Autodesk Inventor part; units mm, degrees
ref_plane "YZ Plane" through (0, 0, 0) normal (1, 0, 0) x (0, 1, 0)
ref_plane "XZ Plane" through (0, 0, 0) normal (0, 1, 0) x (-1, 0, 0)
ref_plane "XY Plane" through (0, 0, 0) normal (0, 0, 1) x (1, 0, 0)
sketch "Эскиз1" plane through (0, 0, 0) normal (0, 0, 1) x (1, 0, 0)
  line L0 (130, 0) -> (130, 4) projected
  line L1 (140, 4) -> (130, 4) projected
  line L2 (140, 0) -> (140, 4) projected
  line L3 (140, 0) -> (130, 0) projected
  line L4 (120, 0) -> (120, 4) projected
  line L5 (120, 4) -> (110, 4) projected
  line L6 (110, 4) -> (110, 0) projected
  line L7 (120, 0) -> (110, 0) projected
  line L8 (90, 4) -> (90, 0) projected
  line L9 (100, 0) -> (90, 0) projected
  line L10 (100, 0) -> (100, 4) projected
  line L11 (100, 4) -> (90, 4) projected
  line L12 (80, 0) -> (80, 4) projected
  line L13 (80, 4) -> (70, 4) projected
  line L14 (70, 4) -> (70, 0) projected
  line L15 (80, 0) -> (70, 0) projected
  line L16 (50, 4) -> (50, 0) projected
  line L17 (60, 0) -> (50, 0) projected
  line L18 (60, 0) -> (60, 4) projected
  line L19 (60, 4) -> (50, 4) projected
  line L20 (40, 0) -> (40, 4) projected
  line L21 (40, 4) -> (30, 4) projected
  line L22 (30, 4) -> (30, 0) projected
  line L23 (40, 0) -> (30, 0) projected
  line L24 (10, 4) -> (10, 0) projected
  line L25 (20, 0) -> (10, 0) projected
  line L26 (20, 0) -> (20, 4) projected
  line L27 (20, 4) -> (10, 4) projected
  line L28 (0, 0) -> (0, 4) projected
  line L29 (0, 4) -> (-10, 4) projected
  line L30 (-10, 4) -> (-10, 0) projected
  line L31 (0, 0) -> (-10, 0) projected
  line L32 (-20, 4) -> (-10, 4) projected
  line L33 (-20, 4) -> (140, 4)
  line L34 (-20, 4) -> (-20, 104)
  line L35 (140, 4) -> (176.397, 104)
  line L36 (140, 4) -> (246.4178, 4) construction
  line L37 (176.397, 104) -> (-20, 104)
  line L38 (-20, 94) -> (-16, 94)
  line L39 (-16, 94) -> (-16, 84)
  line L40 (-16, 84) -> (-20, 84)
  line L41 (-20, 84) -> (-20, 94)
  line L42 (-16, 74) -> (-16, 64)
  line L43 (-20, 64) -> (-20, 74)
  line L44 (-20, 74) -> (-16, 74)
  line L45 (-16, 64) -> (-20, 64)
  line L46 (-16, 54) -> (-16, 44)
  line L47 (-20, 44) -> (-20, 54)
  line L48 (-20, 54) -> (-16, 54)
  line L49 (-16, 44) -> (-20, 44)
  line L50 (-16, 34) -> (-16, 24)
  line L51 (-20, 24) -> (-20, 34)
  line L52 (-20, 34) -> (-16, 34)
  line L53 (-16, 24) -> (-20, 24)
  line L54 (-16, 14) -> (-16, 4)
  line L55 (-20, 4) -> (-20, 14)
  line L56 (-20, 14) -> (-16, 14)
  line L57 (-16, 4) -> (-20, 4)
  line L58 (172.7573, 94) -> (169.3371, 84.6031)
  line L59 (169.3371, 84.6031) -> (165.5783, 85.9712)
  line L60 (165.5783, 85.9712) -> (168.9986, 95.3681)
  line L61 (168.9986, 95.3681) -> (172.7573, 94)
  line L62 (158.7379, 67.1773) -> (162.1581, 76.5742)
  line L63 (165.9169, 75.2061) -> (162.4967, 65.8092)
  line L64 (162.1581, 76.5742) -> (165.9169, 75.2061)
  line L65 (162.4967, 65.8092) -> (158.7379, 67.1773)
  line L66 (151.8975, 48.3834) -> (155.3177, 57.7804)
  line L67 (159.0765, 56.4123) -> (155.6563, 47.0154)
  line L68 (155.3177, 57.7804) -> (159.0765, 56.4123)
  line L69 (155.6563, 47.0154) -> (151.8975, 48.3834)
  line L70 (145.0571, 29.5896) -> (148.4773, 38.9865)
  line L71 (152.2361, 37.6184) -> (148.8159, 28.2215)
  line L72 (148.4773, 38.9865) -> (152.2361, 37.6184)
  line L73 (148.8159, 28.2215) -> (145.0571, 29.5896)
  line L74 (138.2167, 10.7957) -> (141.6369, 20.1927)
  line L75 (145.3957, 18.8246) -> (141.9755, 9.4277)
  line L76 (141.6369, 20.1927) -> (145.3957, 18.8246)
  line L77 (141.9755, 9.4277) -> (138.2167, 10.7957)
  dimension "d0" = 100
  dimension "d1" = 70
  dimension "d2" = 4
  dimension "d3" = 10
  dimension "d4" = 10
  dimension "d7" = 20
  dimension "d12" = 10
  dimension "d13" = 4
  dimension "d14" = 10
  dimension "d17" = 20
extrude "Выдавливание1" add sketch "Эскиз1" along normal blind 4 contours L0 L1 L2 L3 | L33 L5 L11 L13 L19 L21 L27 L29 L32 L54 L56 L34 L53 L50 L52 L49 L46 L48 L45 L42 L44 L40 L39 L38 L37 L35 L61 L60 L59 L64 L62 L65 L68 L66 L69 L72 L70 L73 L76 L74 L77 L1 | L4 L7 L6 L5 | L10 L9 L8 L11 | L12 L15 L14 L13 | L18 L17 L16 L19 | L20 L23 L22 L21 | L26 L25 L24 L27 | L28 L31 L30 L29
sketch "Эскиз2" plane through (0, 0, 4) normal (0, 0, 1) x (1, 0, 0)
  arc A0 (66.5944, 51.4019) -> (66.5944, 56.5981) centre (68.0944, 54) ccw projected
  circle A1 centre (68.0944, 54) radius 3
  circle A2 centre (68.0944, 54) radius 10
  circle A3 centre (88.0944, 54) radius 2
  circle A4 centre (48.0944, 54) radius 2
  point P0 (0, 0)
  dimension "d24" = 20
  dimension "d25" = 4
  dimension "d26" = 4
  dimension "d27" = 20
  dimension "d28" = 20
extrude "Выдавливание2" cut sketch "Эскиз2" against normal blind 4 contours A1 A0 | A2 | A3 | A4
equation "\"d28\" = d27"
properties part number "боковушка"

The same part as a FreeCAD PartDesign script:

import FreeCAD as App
import Part
import Sketcher

V = App.Vector
Q = App.Units.Quantity


def add_polygon(sketch, points):
    """Adds a closed chain of lines whose ends are joined by coincident constraints."""
    first, n = sketch.GeometryCount, len(points)
    for a, b in zip(points, points[1:] + points[:1]):
        sketch.addGeometry(Part.LineSegment(App.Vector(*a, 0), App.Vector(*b, 0)), False)
    for i in range(n):
        sketch.addConstraint(Sketcher.Constraint("Coincident", first + i, 2, first + (i + 1) % n, 1))

doc = App.newDocument("Part")
body = doc.addObject("PartDesign::Body", "Body")

# Sketch on XY plane
sketch1 = body.newObject("Sketcher::SketchObject", "Sketch")
sketch1.AttachmentSupport = (doc.getObject("XY_Plane"), [""])
sketch1.MapMode = "FlatFace"
add_polygon(sketch1, [(130, 4), (130, 0), (140, 0), (140, 4), (141.9755, 9.4277), (138.2167, 10.7957), (141.6369, 20.1927), (145.395709, 18.824597), (148.8159, 28.2215), (145.0571, 29.5896), (148.4773, 38.9865), (152.23609, 37.618404), (155.6563, 47.0154), (151.8975, 48.3834), (155.3177, 57.7804), (159.076504, 56.412298), (162.4967, 65.8092), (158.7379, 67.1773), (162.1581, 76.5742), (165.916886, 75.206105), (169.3371, 84.6031), (165.5783, 85.9712), (168.9986, 95.3681), (172.7573, 94), (176.397, 104), (-20, 104), (-20, 94), (-16, 94), (-16, 84), (-20, 84), (-20, 74), (-16, 74), (-16, 64), (-20, 64), (-20, 54), (-16, 54), (-16, 44), (-20, 44), (-20, 34), (-16, 34), (-16, 24), (-20, 24), (-20, 14), (-16, 14), (-16, 4), (-10, 4), (-10, 0), (0, 0), (0, 4), (10, 4), (10, 0), (20, 0), (20, 4), (30, 4), (30, 0), (40, 0), (40, 4), (50, 4), (50, 0), (60, 0), (60, 4), (70, 4), (70, 0), (80, 0), (80, 4), (90, 4), (90, 0), (100, 0), (100, 4), (110, 4), (110, 0), (120, 0), (120, 4)])  # lines 0-72
sketch1.addConstraint([
    Sketcher.Constraint("Vertical", 0),
    Sketcher.Constraint("Horizontal", 1),
    Sketcher.Constraint("Vertical", 2),
    Sketcher.Constraint("Horizontal", 24),
    Sketcher.Constraint("Vertical", 25),
    Sketcher.Constraint("Horizontal", 26),
    Sketcher.Constraint("Vertical", 27),
    Sketcher.Constraint("Horizontal", 28),
    Sketcher.Constraint("Vertical", 29),
    Sketcher.Constraint("Horizontal", 30),
    Sketcher.Constraint("Vertical", 31),
    Sketcher.Constraint("Horizontal", 32),
    Sketcher.Constraint("Vertical", 33),
    Sketcher.Constraint("Horizontal", 34),
    Sketcher.Constraint("Vertical", 35),
    Sketcher.Constraint("Horizontal", 36),
    Sketcher.Constraint("Vertical", 37),
    Sketcher.Constraint("Horizontal", 38),
    Sketcher.Constraint("Vertical", 39),
    Sketcher.Constraint("Horizontal", 40),
    Sketcher.Constraint("Vertical", 41),
    Sketcher.Constraint("Horizontal", 42),
    Sketcher.Constraint("Vertical", 43),
    Sketcher.Constraint("Horizontal", 44),
    Sketcher.Constraint("Vertical", 45),
    Sketcher.Constraint("Horizontal", 46),
    Sketcher.Constraint("Vertical", 47),
    Sketcher.Constraint("Horizontal", 48),
    Sketcher.Constraint("Vertical", 49),
    Sketcher.Constraint("Horizontal", 50),
    Sketcher.Constraint("Vertical", 51),
    Sketcher.Constraint("Horizontal", 52),
    Sketcher.Constraint("Vertical", 53),
    Sketcher.Constraint("Horizontal", 54),
    Sketcher.Constraint("Vertical", 55),
    Sketcher.Constraint("Horizontal", 56),
    Sketcher.Constraint("Vertical", 57),
    Sketcher.Constraint("Horizontal", 58),
    Sketcher.Constraint("Vertical", 59),
    Sketcher.Constraint("Horizontal", 60),
    Sketcher.Constraint("Vertical", 61),
    Sketcher.Constraint("Horizontal", 62),
    Sketcher.Constraint("Vertical", 63),
    Sketcher.Constraint("Horizontal", 64),
    Sketcher.Constraint("Vertical", 65),
    Sketcher.Constraint("Horizontal", 66),
    Sketcher.Constraint("Vertical", 67),
    Sketcher.Constraint("Horizontal", 68),
    Sketcher.Constraint("Vertical", 69),
    Sketcher.Constraint("Horizontal", 70),
    Sketcher.Constraint("Vertical", 71),
    Sketcher.Constraint("Horizontal", 72),
    Sketcher.Constraint("Coincident", 46, 2, -1, 1),
    Sketcher.Constraint("Symmetric", 45, 2, 49, 2, -1, 1),
    Sketcher.Constraint("PointOnObject", 0, 2, -1),
    Sketcher.Constraint("PointOnObject", 53, 2, -1),
    Sketcher.Constraint("PointOnObject", 57, 2, -1),
    Sketcher.Constraint("PointOnObject", 61, 2, -1),
    Sketcher.Constraint("PointOnObject", 65, 2, -1),
    Sketcher.Constraint("PointOnObject", 69, 2, -1),
    Sketcher.Constraint("Perpendicular", 3, 4),
    Sketcher.Constraint("Perpendicular", 4, 5),
    Sketcher.Constraint("Perpendicular", 5, 6),
    Sketcher.Constraint("Perpendicular", 6, 7),
    Sketcher.Constraint("Perpendicular", 7, 8),
    Sketcher.Constraint("Perpendicular", 8, 9),
    Sketcher.Constraint("Perpendicular", 9, 10),
    Sketcher.Constraint("Perpendicular", 10, 11),
    Sketcher.Constraint("Perpendicular", 11, 12),
    Sketcher.Constraint("Perpendicular", 12, 13),
    Sketcher.Constraint("Perpendicular", 13, 14),
    Sketcher.Constraint("Perpendicular", 14, 15),
    Sketcher.Constraint("Perpendicular", 15, 16),
    Sketcher.Constraint("Perpendicular", 16, 17),
    Sketcher.Constraint("Perpendicular", 17, 18),
    Sketcher.Constraint("Perpendicular", 18, 19),
    Sketcher.Constraint("Perpendicular", 19, 20),
    Sketcher.Constraint("Perpendicular", 20, 21),
    Sketcher.Constraint("Perpendicular", 21, 22),
    Sketcher.Constraint("Perpendicular", 22, 23),
    Sketcher.Constraint("Horizontal", 22, 2, 25, 2),
    Sketcher.Constraint("Horizontal", 2, 2, 43, 2),
    Sketcher.Constraint("Horizontal", 44, 2, 47, 2),
    Sketcher.Constraint("Horizontal", 48, 2, 51, 2),
    Sketcher.Constraint("Horizontal", 52, 2, 55, 2),
    Sketcher.Constraint("Horizontal", 56, 2, 59, 2),
    Sketcher.Constraint("Horizontal", 60, 2, 63, 2),
    Sketcher.Constraint("Horizontal", 64, 2, 67, 2),
    Sketcher.Constraint("Horizontal", 68, 2, 71, 2),
    Sketcher.Constraint("Vertical", 25, 2, 28, 2),
    Sketcher.Constraint("Vertical", 27, 2, 30, 2),
    Sketcher.Constraint("Vertical", 29, 2, 32, 2),
    Sketcher.Constraint("Vertical", 31, 2, 34, 2),
    Sketcher.Constraint("Vertical", 33, 2, 36, 2),
    Sketcher.Constraint("Vertical", 35, 2, 38, 2),
    Sketcher.Constraint("Vertical", 37, 2, 40, 2),
    Sketcher.Constraint("Vertical", 39, 2, 42, 2),
    Sketcher.Constraint("Equal", 1, 46),
    Sketcher.Constraint("Equal", 48, 50),
    Sketcher.Constraint("Equal", 50, 52),
    Sketcher.Constraint("Equal", 52, 54),
    Sketcher.Constraint("Equal", 54, 56),
    Sketcher.Constraint("Equal", 56, 58),
    Sketcher.Constraint("Equal", 58, 60),
    Sketcher.Constraint("Equal", 60, 62),
    Sketcher.Constraint("Equal", 62, 64),
    Sketcher.Constraint("Equal", 64, 66),
    Sketcher.Constraint("Equal", 66, 68),
    Sketcher.Constraint("Equal", 68, 70),
    Sketcher.Constraint("Equal", 70, 72),
    Sketcher.Constraint("Equal", 42, 0),
    Sketcher.Constraint("Equal", 72, 25),
    Sketcher.Constraint("Equal", 25, 27),
    Sketcher.Constraint("Equal", 27, 29),
    Sketcher.Constraint("Equal", 29, 31),
    Sketcher.Constraint("Equal", 31, 33),
    Sketcher.Constraint("Equal", 33, 35),
    Sketcher.Constraint("Equal", 35, 37),
    Sketcher.Constraint("Equal", 37, 39),
    Sketcher.Constraint("Equal", 39, 41),
    Sketcher.Constraint("Equal", 41, 43),
    Sketcher.Constraint("Equal", 4, 6),
    Sketcher.Constraint("Equal", 5, 7),
    Sketcher.Constraint("Equal", 6, 8),
    Sketcher.Constraint("Equal", 7, 9),
    Sketcher.Constraint("Equal", 8, 10),
    Sketcher.Constraint("Equal", 9, 11),
    Sketcher.Constraint("Equal", 10, 12),
    Sketcher.Constraint("Equal", 11, 13),
    Sketcher.Constraint("Equal", 12, 14),
    Sketcher.Constraint("Equal", 13, 15),
    Sketcher.Constraint("Equal", 14, 16),
    Sketcher.Constraint("Equal", 15, 17),
    Sketcher.Constraint("Equal", 16, 18),
    Sketcher.Constraint("Equal", 17, 19),
    Sketcher.Constraint("Equal", 18, 20),
    Sketcher.Constraint("Equal", 19, 21),
    Sketcher.Constraint("Equal", 20, 22),
    Sketcher.Constraint("DistanceX", 1, 1, 1, 2, 10.0),
    Sketcher.Constraint("DistanceX", 26, 1, 26, 2, 4.0),
    Sketcher.Constraint("Angle", 3, Q("70 deg")),
    Sketcher.Constraint("Distance", 4, 4.0),
    Sketcher.Constraint("Distance", 5, 10.0),
    Sketcher.Constraint("DistanceX", 24, 2, -1, 1, 20.0),
])
pad1 = body.newObject("PartDesign::Pad", "Pad")
pad1.Profile = sketch1
pad1.Length = 4

# Sketch on XY plane
sketch2 = body.newObject("Sketcher::SketchObject", "Sketch001")
sketch2.AttachmentSupport = (doc.getObject("XY_Plane"), [""])
sketch2.MapMode = "FlatFace"
sketch2.AttachmentOffset = App.Placement(V(0, 0, 4), App.Rotation())
sketch2.addGeometry([
    Part.Circle(V(68.0944, 54, 0), V(0, 0, 1), 10),
    Part.Circle(V(88.0944, 54, 0), V(0, 0, 1), 2),
    Part.Circle(V(48.0944, 54, 0), V(0, 0, 1), 2),
], False)
sketch2.addConstraint([
    Sketcher.Constraint("Equal", 1, 2),
    Sketcher.Constraint("Horizontal", 0, 3, 1, 3),
    Sketcher.Constraint("Horizontal", 1, 3, 2, 3),
    Sketcher.Constraint("Diameter", 0, 20.0),
    Sketcher.Constraint("Diameter", 1, 4.0),
    Sketcher.Constraint("DistanceX", 0, 3, 1, 3, 20.0),
    Sketcher.Constraint("DistanceX", 2, 3, 0, 3, 20.0),
    Sketcher.Constraint("DistanceY", -1, 1, 0, 3, 54.0),
    Sketcher.Constraint("DistanceX", -1, 1, 0, 3, 68.0944),
])
pocket1 = body.newObject("PartDesign::Pocket", "Pocket")
pocket1.Profile = sketch2
pocket1.Length = 4

doc.recompute()
